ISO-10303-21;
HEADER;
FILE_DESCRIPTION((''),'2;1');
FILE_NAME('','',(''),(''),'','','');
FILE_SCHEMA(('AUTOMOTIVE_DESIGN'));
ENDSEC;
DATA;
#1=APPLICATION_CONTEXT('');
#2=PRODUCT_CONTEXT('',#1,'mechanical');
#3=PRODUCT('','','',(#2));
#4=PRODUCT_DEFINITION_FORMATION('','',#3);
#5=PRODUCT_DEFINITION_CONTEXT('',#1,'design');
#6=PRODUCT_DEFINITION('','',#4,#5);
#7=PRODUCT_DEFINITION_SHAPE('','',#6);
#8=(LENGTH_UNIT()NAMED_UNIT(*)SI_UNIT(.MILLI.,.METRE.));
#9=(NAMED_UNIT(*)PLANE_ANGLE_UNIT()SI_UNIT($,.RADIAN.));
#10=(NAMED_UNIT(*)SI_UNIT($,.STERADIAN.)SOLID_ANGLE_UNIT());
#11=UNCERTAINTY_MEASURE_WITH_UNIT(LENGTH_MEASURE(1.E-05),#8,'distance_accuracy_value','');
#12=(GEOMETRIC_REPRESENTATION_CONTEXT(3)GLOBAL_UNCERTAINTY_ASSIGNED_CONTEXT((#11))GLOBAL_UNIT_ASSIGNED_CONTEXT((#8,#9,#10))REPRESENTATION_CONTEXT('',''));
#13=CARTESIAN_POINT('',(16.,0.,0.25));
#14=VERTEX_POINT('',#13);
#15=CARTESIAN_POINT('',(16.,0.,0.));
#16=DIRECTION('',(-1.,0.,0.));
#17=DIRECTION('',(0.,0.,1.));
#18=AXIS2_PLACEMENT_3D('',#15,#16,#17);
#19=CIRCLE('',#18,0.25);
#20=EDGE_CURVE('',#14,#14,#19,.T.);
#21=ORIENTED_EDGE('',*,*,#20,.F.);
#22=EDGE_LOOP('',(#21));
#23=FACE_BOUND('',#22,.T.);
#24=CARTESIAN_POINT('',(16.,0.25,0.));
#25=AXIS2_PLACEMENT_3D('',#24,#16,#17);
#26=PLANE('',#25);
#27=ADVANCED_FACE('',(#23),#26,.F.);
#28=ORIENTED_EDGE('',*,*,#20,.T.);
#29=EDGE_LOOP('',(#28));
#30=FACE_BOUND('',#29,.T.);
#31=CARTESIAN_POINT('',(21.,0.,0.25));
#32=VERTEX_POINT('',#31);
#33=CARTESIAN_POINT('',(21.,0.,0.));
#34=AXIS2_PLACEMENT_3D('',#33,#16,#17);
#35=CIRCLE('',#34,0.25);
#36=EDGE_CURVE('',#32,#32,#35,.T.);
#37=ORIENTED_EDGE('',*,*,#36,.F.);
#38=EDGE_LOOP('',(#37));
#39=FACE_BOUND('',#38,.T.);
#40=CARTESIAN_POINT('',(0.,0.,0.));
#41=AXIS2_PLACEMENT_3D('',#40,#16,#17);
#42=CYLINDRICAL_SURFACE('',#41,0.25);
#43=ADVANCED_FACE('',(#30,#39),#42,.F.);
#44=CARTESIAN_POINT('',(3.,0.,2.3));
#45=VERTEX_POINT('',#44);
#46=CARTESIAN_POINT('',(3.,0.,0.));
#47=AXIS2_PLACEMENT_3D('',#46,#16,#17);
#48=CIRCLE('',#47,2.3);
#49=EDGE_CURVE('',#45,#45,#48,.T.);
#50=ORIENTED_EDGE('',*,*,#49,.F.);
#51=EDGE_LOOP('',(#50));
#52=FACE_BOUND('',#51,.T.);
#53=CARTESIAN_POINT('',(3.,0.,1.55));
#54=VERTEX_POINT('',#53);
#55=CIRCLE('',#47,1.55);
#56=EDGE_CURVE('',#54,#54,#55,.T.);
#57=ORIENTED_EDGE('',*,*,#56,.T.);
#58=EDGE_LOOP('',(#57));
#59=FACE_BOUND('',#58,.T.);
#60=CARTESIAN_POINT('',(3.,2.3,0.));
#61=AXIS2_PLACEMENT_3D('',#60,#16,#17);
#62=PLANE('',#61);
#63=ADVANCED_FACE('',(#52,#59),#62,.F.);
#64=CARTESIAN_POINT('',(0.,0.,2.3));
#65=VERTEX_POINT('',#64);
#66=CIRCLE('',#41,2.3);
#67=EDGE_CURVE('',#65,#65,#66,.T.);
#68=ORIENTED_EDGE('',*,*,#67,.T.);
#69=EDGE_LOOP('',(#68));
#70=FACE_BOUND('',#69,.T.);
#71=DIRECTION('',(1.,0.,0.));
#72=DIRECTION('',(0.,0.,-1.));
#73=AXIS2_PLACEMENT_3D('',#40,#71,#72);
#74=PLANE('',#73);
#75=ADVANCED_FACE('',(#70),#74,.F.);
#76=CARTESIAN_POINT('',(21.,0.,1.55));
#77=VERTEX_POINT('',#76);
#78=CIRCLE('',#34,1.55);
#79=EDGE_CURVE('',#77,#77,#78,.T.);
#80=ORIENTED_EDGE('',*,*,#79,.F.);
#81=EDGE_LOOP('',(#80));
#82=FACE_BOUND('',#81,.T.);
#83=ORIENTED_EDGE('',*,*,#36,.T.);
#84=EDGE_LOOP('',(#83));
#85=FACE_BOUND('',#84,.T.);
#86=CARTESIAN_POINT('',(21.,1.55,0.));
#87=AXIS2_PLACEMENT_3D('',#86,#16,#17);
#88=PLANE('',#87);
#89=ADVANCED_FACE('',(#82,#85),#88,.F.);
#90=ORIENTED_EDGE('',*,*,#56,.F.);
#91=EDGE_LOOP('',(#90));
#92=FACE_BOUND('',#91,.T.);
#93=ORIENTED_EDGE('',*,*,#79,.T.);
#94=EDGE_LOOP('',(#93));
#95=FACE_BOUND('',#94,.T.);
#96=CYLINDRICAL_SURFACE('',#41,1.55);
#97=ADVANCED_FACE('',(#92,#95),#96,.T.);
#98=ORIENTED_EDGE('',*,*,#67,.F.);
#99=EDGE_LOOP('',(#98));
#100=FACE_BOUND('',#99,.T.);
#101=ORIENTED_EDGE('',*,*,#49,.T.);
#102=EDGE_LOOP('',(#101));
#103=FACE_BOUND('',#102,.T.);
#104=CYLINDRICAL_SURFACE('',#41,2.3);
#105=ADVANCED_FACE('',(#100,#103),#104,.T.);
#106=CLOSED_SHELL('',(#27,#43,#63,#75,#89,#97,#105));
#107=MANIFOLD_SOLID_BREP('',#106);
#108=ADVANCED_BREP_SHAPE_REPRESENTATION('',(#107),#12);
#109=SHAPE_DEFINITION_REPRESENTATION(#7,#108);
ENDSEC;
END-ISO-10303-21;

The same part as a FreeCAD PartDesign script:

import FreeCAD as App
import Part
import Sketcher

V = App.Vector
Q = App.Units.Quantity


def add_polygon(sketch, points):
    """Adds a closed chain of lines whose ends are joined by coincident constraints."""
    first, n = sketch.GeometryCount, len(points)
    for a, b in zip(points, points[1:] + points[:1]):
        sketch.addGeometry(Part.LineSegment(App.Vector(*a, 0), App.Vector(*b, 0)), False)
    for i in range(n):
        sketch.addConstraint(Sketcher.Constraint("Coincident", first + i, 2, first + (i + 1) % n, 1))

doc = App.newDocument("Part")
body = doc.addObject("PartDesign::Body", "Body")

# Sketch on XY plane
sketch1 = doc.addObject("Sketcher::SketchObject", "Sketch")
body.addObject(sketch1)
sketch1.AttachmentSupport = (doc.XY_Plane, [""])
sketch1.MapMode = "FlatFace"
add_polygon(sketch1, [(0, 2.3), (0, 0), (16, 0), (16, 0.25), (21, 0.25), (21, 1.55), (3, 1.55), (3, 2.3)])  # lines 0-7
sketch1.addConstraint([
    Sketcher.Constraint("Vertical", 0),
    Sketcher.Constraint("Horizontal", 1),
    Sketcher.Constraint("Vertical", 2),
    Sketcher.Constraint("Horizontal", 3),
    Sketcher.Constraint("Vertical", 4),
    Sketcher.Constraint("Horizontal", 5),
    Sketcher.Constraint("Vertical", 6),
    Sketcher.Constraint("Horizontal", 7),
    Sketcher.Constraint("Coincident", 0, 2, -1, 1),
    Sketcher.Constraint("DistanceX", 1, 1, 1, 2, Q("16 mm")),
    Sketcher.Constraint("DistanceX", 3, 1, 3, 2, Q("5 mm")),
    Sketcher.Constraint("DistanceX", 5, 2, 5, 1, Q("18 mm")),
    Sketcher.Constraint("DistanceY", 0, 2, 0, 1, Q("2.3 mm")),
    Sketcher.Constraint("DistanceY", 4, 1, 4, 2, Q("1.3 mm")),
    Sketcher.Constraint("DistanceY", 2, 1, 2, 2, Q("0.25 mm")),
])
revolution = doc.addObject("PartDesign::Revolution", "Revolution")
body.addObject(revolution)
revolution.Profile = sketch1
revolution.ReferenceAxis = (sketch1, ["H_Axis"])
revolution.Angle = 360

doc.recompute()
